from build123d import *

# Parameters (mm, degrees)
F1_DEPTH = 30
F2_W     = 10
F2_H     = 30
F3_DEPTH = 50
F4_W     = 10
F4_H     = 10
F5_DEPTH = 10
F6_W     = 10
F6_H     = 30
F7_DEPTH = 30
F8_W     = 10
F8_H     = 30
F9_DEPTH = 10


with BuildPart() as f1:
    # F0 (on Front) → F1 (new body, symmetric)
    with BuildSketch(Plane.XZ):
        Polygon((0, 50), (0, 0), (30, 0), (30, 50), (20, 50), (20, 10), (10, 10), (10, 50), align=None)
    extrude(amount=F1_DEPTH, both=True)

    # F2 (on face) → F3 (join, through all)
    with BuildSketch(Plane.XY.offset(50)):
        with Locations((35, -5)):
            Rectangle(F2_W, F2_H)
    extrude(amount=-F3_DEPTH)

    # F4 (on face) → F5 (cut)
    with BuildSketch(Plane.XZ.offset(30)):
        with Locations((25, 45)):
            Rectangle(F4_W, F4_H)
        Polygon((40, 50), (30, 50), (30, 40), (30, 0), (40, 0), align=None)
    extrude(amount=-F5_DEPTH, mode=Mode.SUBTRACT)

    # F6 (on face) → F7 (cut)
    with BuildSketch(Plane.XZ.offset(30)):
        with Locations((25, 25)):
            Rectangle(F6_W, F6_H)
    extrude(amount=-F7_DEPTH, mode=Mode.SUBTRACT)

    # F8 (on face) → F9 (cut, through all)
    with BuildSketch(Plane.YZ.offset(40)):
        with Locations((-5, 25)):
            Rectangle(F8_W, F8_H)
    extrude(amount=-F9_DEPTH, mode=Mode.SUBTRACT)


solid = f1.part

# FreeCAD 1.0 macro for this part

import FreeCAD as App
import Part
import Sketcher

V = App.Vector
Q = App.Units.Quantity

doc = App.newDocument("Part")
body = doc.addObject("PartDesign::Body", "Body")

sketch1 = doc.addObject("Sketcher::SketchObject", "Sketch")
body.addObject(sketch1)
sketch1.AttachmentSupport = (doc.XZ_Plane, [""])
sketch1.MapMode = "FlatFace"
sketch1.addGeometry(Part.LineSegment(V(0, 50, 0), V(0, 0, 0)), False)
sketch1.addGeometry(Part.LineSegment(V(0, 0, 0), V(30, 0, 0)), False)
sketch1.addGeometry(Part.LineSegment(V(30, 0, 0), V(30, 50, 0)), False)
sketch1.addGeometry(Part.LineSegment(V(30, 50, 0), V(20, 50, 0)), False)
sketch1.addGeometry(Part.LineSegment(V(20, 50, 0), V(20, 10, 0)), False)
sketch1.addGeometry(Part.LineSegment(V(20, 10, 0), V(10, 10, 0)), False)
sketch1.addGeometry(Part.LineSegment(V(10, 10, 0), V(10, 50, 0)), False)
sketch1.addGeometry(Part.LineSegment(V(10, 50, 0), V(0, 50, 0)), False)
sketch1.addConstraint(Sketcher.Constraint("Coincident", 0, 2, 1, 1))
sketch1.addConstraint(Sketcher.Constraint("Coincident", 1, 2, 2, 1))
sketch1.addConstraint(Sketcher.Constraint("Coincident", 2, 2, 3, 1))
sketch1.addConstraint(Sketcher.Constraint("Coincident", 3, 2, 4, 1))
sketch1.addConstraint(Sketcher.Constraint("Coincident", 4, 2, 5, 1))
sketch1.addConstraint(Sketcher.Constraint("Coincident", 5, 2, 6, 1))
sketch1.addConstraint(Sketcher.Constraint("Coincident", 6, 2, 7, 1))
sketch1.addConstraint(Sketcher.Constraint("Coincident", 7, 2, 0, 1))
sketch1.addConstraint(Sketcher.Constraint("Vertical", 0))
sketch1.addConstraint(Sketcher.Constraint("Horizontal", 1))
sketch1.addConstraint(Sketcher.Constraint("Vertical", 2))
sketch1.addConstraint(Sketcher.Constraint("Horizontal", 3))
sketch1.addConstraint(Sketcher.Constraint("Vertical", 4))
sketch1.addConstraint(Sketcher.Constraint("Horizontal", 5))
sketch1.addConstraint(Sketcher.Constraint("Vertical", 6))
sketch1.addConstraint(Sketcher.Constraint("Horizontal", 7))
sketch1.addConstraint(Sketcher.Constraint("Coincident", 0, 2, -1, 1))
sketch1.addConstraint(Sketcher.Constraint("Horizontal", 3, 2, 6, 2))
sketch1.addConstraint(Sketcher.Constraint("Equal", 3, 5))
sketch1.addConstraint(Sketcher.Constraint("Equal", 5, 7))
sketch1.addConstraint(Sketcher.Constraint("DistanceX", 1, 1, 1, 2, Q("30 mm")))
sketch1.addConstraint(Sketcher.Constraint("DistanceY", 0, 2, 0, 1, Q("50 mm")))
sketch1.addConstraint(Sketcher.Constraint("DistanceY", 4, 2, 4, 1, Q("40 mm")))
pad1 = doc.addObject("PartDesign::Pad", "Pad")
body.addObject(pad1)
pad1.Profile = sketch1
pad1.Length = 60
pad1.Midplane = True

sketch2 = doc.addObject("Sketcher::SketchObject", "Sketch001")
body.addObject(sketch2)
sketch2.AttachmentSupport = (doc.XY_Plane, [""])
sketch2.MapMode = "FlatFace"
sketch2.AttachmentOffset = App.Placement(V(0, 0, 50), App.Rotation())
sketch2.addGeometry(Part.LineSegment(V(30, 10, 0), V(30, -20, 0)), False)
sketch2.addGeometry(Part.LineSegment(V(30, -20, 0), V(40, -20, 0)), False)
sketch2.addGeometry(Part.LineSegment(V(40, -20, 0), V(40, 10, 0)), False)
sketch2.addGeometry(Part.LineSegment(V(40, 10, 0), V(30, 10, 0)), False)
sketch2.addConstraint(Sketcher.Constraint("Coincident", 0, 2, 1, 1))
sketch2.addConstraint(Sketcher.Constraint("Coincident", 1, 2, 2, 1))
sketch2.addConstraint(Sketcher.Constraint("Coincident", 2, 2, 3, 1))
sketch2.addConstraint(Sketcher.Constraint("Coincident", 3, 2, 0, 1))
sketch2.addConstraint(Sketcher.Constraint("Vertical", 0))
sketch2.addConstraint(Sketcher.Constraint("Horizontal", 1))
sketch2.addConstraint(Sketcher.Constraint("Vertical", 2))
sketch2.addConstraint(Sketcher.Constraint("Horizontal", 3))
sketch2.addConstraint(Sketcher.Constraint("DistanceX", 1, 1, 1, 2, Q("10 mm")))
sketch2.addConstraint(Sketcher.Constraint("DistanceY", 0, 2, 0, 1, Q("30 mm")))
sketch2.addConstraint(Sketcher.Constraint("DistanceX", -1, 1, 0, 2, Q("30 mm")))
sketch2.addConstraint(Sketcher.Constraint("DistanceY", 0, 2, -1, 1, Q("20 mm")))
pad2 = doc.addObject("PartDesign::Pad", "Pad001")
body.addObject(pad2)
pad2.Profile = sketch2
pad2.Length = 50
pad2.Reversed = True

sketch3 = doc.addObject("Sketcher::SketchObject", "Sketch002")
body.addObject(sketch3)
sketch3.AttachmentSupport = (doc.XZ_Plane, [""])
sketch3.MapMode = "FlatFace"
sketch3.AttachmentOffset = App.Placement(V(0, 0, 30), App.Rotation())
sketch3.addGeometry(Part.LineSegment(V(20, 50, 0), V(20, 40, 0)), False)
sketch3.addGeometry(Part.LineSegment(V(20, 40, 0), V(30, 40, 0)), False)
sketch3.addGeometry(Part.LineSegment(V(30, 40, 0), V(30, 0, 0)), False)
sketch3.addGeometry(Part.LineSegment(V(30, 0, 0), V(40, 0, 0)), False)
sketch3.addGeometry(Part.LineSegment(V(40, 0, 0), V(40, 50, 0)), False)
sketch3.addGeometry(Part.LineSegment(V(40, 50, 0), V(20, 50, 0)), False)
sketch3.addConstraint(Sketcher.Constraint("Coincident", 0, 2, 1, 1))
sketch3.addConstraint(Sketcher.Constraint("Coincident", 1, 2, 2, 1))
sketch3.addConstraint(Sketcher.Constraint("Coincident", 2, 2, 3, 1))
sketch3.addConstraint(Sketcher.Constraint("Coincident", 3, 2, 4, 1))
sketch3.addConstraint(Sketcher.Constraint("Coincident", 4, 2, 5, 1))
sketch3.addConstraint(Sketcher.Constraint("Coincident", 5, 2, 0, 1))
sketch3.addConstraint(Sketcher.Constraint("Vertical", 0))
sketch3.addConstraint(Sketcher.Constraint("Horizontal", 1))
sketch3.addConstraint(Sketcher.Constraint("Vertical", 2))
sketch3.addConstraint(Sketcher.Constraint("Horizontal", 3))
sketch3.addConstraint(Sketcher.Constraint("Vertical", 4))
sketch3.addConstraint(Sketcher.Constraint("Horizontal", 5))
sketch3.addConstraint(Sketcher.Constraint("PointOnObject", 2, 2, -1))
sketch3.addConstraint(Sketcher.Constraint("Equal", 1, 3))
sketch3.addConstraint(Sketcher.Constraint("Equal", 3, 0))
sketch3.addConstraint(Sketcher.Constraint("DistanceX", 1, 1, 1, 2, Q("10 mm")))
sketch3.addConstraint(Sketcher.Constraint("DistanceY", 2, 2, 2, 1, Q("40 mm")))
sketch3.addConstraint(Sketcher.Constraint("DistanceX", -1, 1, 0, 2, Q("20 mm")))
pocket1 = doc.addObject("PartDesign::Pocket", "Pocket")
body.addObject(pocket1)
pocket1.Profile = sketch3
pocket1.Length = 10

sketch4 = doc.addObject("Sketcher::SketchObject", "Sketch003")
body.addObject(sketch4)
sketch4.AttachmentSupport = (doc.XZ_Plane, [""])
sketch4.MapMode = "FlatFace"
sketch4.AttachmentOffset = App.Placement(V(0, 0, 30), App.Rotation())
sketch4.addGeometry(Part.LineSegment(V(20, 40, 0), V(20, 10, 0)), False)
sketch4.addGeometry(Part.LineSegment(V(20, 10, 0), V(30, 10, 0)), False)
sketch4.addGeometry(Part.LineSegment(V(30, 10, 0), V(30, 40, 0)), False)
sketch4.addGeometry(Part.LineSegment(V(30, 40, 0), V(20, 40, 0)), False)
sketch4.addConstraint(Sketcher.Constraint("Coincident", 0, 2, 1, 1))
sketch4.addConstraint(Sketcher.Constraint("Coincident", 1, 2, 2, 1))
sketch4.addConstraint(Sketcher.Constraint("Coincident", 2, 2, 3, 1))
sketch4.addConstraint(Sketcher.Constraint("Coincident", 3, 2, 0, 1))
sketch4.addConstraint(Sketcher.Constraint("Vertical", 0))
sketch4.addConstraint(Sketcher.Constraint("Horizontal", 1))
sketch4.addConstraint(Sketcher.Constraint("Vertical", 2))
sketch4.addConstraint(Sketcher.Constraint("Horizontal", 3))
sketch4.addConstraint(Sketcher.Constraint("DistanceX", 1, 1, 1, 2, Q("10 mm")))
sketch4.addConstraint(Sketcher.Constraint("DistanceY", 0, 2, 0, 1, Q("30 mm")))
sketch4.addConstraint(Sketcher.Constraint("DistanceX", -1, 1, 0, 2, Q("20 mm")))
sketch4.addConstraint(Sketcher.Constraint("DistanceY", -1, 1, 0, 2, Q("10 mm")))
pocket2 = doc.addObject("PartDesign::Pocket", "Pocket001")
body.addObject(pocket2)
pocket2.Profile = sketch4
pocket2.Length = 30

sketch5 = doc.addObject("Sketcher::SketchObject", "Sketch004")
body.addObject(sketch5)
sketch5.AttachmentSupport = (doc.YZ_Plane, [""])
sketch5.MapMode = "FlatFace"
sketch5.AttachmentOffset = App.Placement(V(0, 0, 40), App.Rotation())
sketch5.addGeometry(Part.LineSegment(V(-10, 40, 0), V(-10, 10, 0)), False)
sketch5.addGeometry(Part.LineSegment(V(-10, 10, 0), V(0, 10, 0)), False)
sketch5.addGeometry(Part.LineSegment(V(0, 10, 0), V(0, 40, 0)), False)
sketch5.addGeometry(Part.LineSegment(V(0, 40, 0), V(-10, 40, 0)), False)
sketch5.addConstraint(Sketcher.Constraint("Coincident", 0, 2, 1, 1))
sketch5.addConstraint(Sketcher.Constraint("Coincident", 1, 2, 2, 1))
sketch5.addConstraint(Sketcher.Constraint("Coincident", 2, 2, 3, 1))
sketch5.addConstraint(Sketcher.Constraint("Coincident", 3, 2, 0, 1))
sketch5.addConstraint(Sketcher.Constraint("Vertical", 0))
sketch5.addConstraint(Sketcher.Constraint("Horizontal", 1))
sketch5.addConstraint(Sketcher.Constraint("Vertical", 2))
sketch5.addConstraint(Sketcher.Constraint("Horizontal", 3))
sketch5.addConstraint(Sketcher.Constraint("PointOnObject", 1, 2, -2))
sketch5.addConstraint(Sketcher.Constraint("DistanceX", 1, 1, 1, 2, Q("10 mm")))
sketch5.addConstraint(Sketcher.Constraint("DistanceY", 0, 2, 0, 1, Q("30 mm")))
sketch5.addConstraint(Sketcher.Constraint("DistanceY", -1, 1, 0, 2, Q("10 mm")))
pocket3 = doc.addObject("PartDesign::Pocket", "Pocket002")
body.addObject(pocket3)
pocket3.Profile = sketch5
pocket3.Length = 10

doc.recompute()
